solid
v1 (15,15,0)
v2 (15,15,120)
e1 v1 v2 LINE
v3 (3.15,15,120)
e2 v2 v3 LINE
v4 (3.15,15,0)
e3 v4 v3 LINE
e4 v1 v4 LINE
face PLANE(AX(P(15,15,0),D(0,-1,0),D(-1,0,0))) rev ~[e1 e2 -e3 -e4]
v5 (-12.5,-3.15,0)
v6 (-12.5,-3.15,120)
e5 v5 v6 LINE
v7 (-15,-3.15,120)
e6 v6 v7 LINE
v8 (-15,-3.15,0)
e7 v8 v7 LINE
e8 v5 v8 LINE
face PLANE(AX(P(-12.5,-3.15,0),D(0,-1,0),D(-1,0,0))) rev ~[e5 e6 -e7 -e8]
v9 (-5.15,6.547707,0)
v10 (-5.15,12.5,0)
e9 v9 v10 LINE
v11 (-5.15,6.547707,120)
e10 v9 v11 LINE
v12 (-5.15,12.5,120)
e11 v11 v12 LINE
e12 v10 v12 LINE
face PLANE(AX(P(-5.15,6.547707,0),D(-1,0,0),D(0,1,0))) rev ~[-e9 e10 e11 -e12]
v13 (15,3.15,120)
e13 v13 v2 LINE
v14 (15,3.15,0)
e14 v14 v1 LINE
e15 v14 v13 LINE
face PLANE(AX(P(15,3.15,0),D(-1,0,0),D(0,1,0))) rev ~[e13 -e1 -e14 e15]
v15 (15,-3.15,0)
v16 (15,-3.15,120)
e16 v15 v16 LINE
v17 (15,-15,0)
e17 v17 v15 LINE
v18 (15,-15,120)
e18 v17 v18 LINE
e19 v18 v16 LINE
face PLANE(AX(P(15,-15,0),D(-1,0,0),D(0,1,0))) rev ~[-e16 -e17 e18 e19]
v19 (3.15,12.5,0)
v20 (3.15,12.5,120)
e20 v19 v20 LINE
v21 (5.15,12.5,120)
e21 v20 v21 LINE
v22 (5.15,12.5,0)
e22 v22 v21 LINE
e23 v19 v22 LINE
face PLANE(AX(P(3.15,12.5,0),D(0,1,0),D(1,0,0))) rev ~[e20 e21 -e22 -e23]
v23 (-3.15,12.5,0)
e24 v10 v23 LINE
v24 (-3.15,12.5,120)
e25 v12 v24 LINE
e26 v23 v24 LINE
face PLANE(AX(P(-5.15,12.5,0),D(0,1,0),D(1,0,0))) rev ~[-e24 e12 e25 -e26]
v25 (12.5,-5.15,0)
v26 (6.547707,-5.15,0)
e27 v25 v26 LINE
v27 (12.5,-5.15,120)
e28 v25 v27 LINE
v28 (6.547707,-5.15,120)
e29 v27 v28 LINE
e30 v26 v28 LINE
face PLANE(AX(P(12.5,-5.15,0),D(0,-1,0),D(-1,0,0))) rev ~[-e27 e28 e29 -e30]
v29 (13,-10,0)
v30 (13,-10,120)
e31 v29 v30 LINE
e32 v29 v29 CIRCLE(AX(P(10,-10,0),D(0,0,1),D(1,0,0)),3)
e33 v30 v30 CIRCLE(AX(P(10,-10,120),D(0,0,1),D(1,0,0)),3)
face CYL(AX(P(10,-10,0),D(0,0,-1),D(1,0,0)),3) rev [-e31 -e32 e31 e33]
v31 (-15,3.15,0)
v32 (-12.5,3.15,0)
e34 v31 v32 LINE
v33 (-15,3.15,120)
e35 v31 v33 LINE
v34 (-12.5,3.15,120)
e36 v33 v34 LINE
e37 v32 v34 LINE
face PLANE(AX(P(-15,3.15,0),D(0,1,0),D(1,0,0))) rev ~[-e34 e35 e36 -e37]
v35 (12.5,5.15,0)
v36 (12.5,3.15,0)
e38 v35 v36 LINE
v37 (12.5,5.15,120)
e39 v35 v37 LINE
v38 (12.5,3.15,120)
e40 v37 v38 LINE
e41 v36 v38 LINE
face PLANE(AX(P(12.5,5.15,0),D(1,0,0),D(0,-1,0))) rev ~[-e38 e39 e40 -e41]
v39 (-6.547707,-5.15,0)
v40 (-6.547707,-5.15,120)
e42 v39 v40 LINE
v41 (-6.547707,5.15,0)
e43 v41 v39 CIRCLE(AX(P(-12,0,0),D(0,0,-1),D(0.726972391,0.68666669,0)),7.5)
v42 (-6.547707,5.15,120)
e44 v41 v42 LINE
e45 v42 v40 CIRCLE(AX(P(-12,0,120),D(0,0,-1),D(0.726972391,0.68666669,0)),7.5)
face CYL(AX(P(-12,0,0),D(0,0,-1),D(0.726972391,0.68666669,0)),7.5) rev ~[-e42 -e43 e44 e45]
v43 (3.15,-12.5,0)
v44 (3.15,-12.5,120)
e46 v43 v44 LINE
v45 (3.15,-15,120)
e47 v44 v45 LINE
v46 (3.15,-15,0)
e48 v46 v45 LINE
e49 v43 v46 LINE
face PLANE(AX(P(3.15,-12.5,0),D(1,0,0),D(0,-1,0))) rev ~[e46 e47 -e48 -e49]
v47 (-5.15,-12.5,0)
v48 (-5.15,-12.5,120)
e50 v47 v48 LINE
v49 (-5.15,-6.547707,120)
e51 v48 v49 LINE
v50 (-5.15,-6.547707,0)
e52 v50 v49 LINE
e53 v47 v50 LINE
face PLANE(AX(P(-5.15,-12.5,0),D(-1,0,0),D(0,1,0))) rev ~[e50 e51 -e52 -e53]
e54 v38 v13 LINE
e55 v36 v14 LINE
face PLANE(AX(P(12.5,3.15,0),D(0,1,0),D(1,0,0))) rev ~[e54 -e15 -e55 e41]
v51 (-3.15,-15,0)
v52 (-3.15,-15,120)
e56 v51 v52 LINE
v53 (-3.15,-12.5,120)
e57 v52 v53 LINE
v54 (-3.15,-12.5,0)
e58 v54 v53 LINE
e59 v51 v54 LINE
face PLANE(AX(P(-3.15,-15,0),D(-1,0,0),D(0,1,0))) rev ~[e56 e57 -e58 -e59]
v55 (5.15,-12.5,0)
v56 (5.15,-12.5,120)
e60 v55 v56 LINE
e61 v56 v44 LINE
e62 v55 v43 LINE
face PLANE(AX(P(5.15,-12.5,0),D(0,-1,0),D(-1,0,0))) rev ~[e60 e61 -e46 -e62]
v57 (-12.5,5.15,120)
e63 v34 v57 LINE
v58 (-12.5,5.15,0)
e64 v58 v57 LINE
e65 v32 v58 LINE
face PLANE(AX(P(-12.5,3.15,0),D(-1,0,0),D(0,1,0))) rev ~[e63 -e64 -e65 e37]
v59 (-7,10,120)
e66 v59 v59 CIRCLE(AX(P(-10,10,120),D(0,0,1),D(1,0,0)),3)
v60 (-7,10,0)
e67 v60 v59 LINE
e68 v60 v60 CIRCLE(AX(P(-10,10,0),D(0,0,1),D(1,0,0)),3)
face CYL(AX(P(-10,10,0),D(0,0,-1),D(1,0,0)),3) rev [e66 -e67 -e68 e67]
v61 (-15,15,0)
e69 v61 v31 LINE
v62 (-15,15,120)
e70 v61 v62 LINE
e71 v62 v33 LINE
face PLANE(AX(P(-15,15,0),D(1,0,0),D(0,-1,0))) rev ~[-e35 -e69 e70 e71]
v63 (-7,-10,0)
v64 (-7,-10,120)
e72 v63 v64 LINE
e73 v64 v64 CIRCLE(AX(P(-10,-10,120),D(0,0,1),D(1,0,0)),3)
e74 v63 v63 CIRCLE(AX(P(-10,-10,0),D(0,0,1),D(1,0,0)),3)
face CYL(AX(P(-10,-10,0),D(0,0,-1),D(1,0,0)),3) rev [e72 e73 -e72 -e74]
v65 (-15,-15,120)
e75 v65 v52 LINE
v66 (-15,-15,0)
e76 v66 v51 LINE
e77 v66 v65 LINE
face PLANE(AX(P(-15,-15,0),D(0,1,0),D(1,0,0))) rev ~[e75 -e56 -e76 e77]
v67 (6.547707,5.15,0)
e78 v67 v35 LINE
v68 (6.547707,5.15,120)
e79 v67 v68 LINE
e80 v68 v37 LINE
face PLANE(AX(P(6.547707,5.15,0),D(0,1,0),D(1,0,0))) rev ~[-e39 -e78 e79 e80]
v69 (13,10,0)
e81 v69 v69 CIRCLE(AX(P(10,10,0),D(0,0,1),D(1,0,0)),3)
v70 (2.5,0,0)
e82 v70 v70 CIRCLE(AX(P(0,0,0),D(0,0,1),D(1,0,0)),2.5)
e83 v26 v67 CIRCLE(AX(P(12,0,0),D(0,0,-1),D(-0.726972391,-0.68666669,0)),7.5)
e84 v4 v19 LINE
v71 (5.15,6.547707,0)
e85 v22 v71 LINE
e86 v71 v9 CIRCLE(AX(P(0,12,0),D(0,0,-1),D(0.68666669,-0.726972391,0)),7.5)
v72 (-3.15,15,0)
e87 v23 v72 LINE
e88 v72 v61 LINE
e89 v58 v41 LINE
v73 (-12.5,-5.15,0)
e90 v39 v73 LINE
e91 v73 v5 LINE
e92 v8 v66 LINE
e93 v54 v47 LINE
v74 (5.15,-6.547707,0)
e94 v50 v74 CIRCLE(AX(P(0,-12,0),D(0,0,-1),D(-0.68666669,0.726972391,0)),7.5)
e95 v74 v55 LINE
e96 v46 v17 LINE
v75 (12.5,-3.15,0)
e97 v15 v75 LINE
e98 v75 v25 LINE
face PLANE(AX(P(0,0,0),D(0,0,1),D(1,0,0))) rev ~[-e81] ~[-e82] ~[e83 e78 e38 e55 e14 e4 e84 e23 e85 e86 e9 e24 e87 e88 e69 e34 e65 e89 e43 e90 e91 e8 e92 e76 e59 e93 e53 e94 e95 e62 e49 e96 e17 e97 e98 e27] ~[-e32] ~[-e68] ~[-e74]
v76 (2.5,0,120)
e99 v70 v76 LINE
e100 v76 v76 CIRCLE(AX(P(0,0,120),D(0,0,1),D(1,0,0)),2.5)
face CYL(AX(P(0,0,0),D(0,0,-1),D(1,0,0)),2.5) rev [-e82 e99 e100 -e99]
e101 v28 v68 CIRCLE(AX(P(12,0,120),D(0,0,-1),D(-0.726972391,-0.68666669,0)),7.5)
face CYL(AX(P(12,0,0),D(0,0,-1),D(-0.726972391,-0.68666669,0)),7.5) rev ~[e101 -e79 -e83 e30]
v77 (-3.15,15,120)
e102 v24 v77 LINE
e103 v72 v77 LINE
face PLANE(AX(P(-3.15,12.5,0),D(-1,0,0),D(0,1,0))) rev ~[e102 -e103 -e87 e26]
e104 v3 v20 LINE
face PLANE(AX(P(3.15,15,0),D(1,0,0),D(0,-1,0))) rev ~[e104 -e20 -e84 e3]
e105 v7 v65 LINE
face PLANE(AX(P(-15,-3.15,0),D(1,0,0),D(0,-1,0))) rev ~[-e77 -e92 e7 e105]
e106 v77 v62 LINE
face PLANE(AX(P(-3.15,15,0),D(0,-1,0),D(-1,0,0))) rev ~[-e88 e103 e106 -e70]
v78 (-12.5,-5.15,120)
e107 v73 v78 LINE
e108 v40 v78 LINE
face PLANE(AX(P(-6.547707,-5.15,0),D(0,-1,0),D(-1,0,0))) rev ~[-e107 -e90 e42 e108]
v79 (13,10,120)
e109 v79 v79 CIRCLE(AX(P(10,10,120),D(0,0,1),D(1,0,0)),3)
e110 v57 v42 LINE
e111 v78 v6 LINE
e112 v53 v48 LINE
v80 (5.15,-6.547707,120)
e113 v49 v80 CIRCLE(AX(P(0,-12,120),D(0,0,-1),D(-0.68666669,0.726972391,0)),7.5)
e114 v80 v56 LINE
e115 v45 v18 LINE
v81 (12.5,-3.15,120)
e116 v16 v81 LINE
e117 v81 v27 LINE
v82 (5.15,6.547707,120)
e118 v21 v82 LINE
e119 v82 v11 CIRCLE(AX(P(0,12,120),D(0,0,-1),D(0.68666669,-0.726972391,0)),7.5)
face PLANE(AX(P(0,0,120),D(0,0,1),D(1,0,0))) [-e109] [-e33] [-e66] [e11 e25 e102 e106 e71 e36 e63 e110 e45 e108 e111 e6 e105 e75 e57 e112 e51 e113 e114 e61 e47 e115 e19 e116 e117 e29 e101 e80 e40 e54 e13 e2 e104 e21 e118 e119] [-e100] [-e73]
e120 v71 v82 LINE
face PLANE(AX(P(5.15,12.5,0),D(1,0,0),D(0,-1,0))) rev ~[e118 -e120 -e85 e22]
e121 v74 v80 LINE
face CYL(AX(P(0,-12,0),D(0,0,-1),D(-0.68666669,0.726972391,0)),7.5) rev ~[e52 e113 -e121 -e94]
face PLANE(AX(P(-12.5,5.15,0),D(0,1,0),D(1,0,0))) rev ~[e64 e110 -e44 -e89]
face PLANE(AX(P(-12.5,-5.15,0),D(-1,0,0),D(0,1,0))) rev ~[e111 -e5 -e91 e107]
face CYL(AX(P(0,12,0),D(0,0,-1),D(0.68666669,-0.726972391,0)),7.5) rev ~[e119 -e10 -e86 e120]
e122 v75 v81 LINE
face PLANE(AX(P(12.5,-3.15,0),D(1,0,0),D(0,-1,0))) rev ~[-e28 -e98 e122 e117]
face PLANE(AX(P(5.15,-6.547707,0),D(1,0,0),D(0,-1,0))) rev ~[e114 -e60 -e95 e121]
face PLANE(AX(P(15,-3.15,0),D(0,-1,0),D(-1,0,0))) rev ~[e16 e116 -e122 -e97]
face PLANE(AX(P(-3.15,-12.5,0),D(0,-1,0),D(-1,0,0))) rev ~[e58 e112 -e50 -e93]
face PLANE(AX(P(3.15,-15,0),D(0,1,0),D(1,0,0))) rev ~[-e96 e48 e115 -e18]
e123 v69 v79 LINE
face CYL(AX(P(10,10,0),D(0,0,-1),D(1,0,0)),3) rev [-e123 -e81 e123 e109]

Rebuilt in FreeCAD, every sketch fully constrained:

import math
import FreeCAD as App
import Part
import Sketcher
from FreeCAD import Vector
Q = App.Units.Quantity

doc = App.newDocument("Part")
params = doc.addObject("Spreadsheet::Sheet", "Params")
for row, (alias, value) in enumerate([
    ("sketch1_diameter", "6 mm"),
    ("sketch1_diameter2", "5 mm"),
    ("sketch1_radius", "7.5 mm"),
    ("sketch1_width", "2 mm"),
    ("sketch1_width2", "2.5 mm"),
    ("pad1_length", "120 mm"),
], start=1):
    params.set(f"A{row}", alias)
    params.set(f"B{row}", "=" + value)
    params.setAlias(f"B{row}", alias)

body = doc.addObject("PartDesign::Body", "Body")

sketch1 = doc.addObject("Sketcher::SketchObject", "Sketch")
body.addObject(sketch1)
sketch1.AttachmentSupport = (doc.XY_Plane, [""])
sketch1.MapMode = "FlatFace"
sketch1.addGeometry([
    Part.LineSegment(Vector(-15, 15, 0), Vector(-15, 3.1, 0)),
    Part.LineSegment(Vector(-15, 3.1, 0), Vector(-12.5, 3.1, 0)),
    Part.LineSegment(Vector(-12.5, 3.1, 0), Vector(-12.5, 5.2, 0)),
    Part.LineSegment(Vector(-12.5, 5.2, 0), Vector(-6.5, 5.2, 0)),
    Part.ArcOfCircle(Part.Circle(Vector(-12, 0, 0), Vector(0, 0, 1), 7.5), math.radians(-43), math.radians(43)),
    Part.LineSegment(Vector(-6.5, -5.2, 0), Vector(-12.5, -5.2, 0)),
    Part.LineSegment(Vector(-12.5, -5.2, 0), Vector(-12.5, -3.1, 0)),
    Part.LineSegment(Vector(-12.5, -3.1, 0), Vector(-15, -3.1, 0)),
    Part.LineSegment(Vector(-15, -3.1, 0), Vector(-15, -15, 0)),
    Part.LineSegment(Vector(-15, -15, 0), Vector(-3.1, -15, 0)),
    Part.LineSegment(Vector(-3.1, -15, 0), Vector(-3.1, -12.5, 0)),
    Part.LineSegment(Vector(-3.1, -12.5, 0), Vector(-5.2, -12.5, 0)),
    Part.LineSegment(Vector(-5.2, -12.5, 0), Vector(-5.2, -6.5, 0)),
    Part.ArcOfCircle(Part.Circle(Vector(0, -12, 0), Vector(0, 0, 1), 7.5), math.radians(47), math.radians(133)),
    Part.LineSegment(Vector(5.2, -6.5, 0), Vector(5.2, -12.5, 0)),
    Part.LineSegment(Vector(5.2, -12.5, 0), Vector(3.1, -12.5, 0)),
    Part.LineSegment(Vector(3.1, -12.5, 0), Vector(3.1, -15, 0)),
    Part.LineSegment(Vector(3.1, -15, 0), Vector(15, -15, 0)),
    Part.LineSegment(Vector(15, -15, 0), Vector(15, -3.1, 0)),
    Part.LineSegment(Vector(15, -3.1, 0), Vector(12.5, -3.1, 0)),
    Part.LineSegment(Vector(12.5, -3.1, 0), Vector(12.5, -5.2, 0)),
    Part.LineSegment(Vector(12.5, -5.2, 0), Vector(6.5, -5.2, 0)),
    Part.ArcOfCircle(Part.Circle(Vector(12, 0, 0), Vector(0, 0, 1), 7.5), math.radians(137), math.radians(223)),
    Part.LineSegment(Vector(6.5, 5.2, 0), Vector(12.5, 5.2, 0)),
    Part.LineSegment(Vector(12.5, 5.2, 0), Vector(12.5, 3.1, 0)),
    Part.LineSegment(Vector(12.5, 3.1, 0), Vector(15, 3.1, 0)),
    Part.LineSegment(Vector(15, 3.1, 0), Vector(15, 15, 0)),
    Part.LineSegment(Vector(15, 15, 0), Vector(3.1, 15, 0)),
    Part.LineSegment(Vector(3.1, 15, 0), Vector(3.1, 12.5, 0)),
    Part.LineSegment(Vector(3.1, 12.5, 0), Vector(5.2, 12.5, 0)),
    Part.LineSegment(Vector(5.2, 12.5, 0), Vector(5.2, 6.5, 0)),
    Part.ArcOfCircle(Part.Circle(Vector(0, 12, 0), Vector(0, 0, 1), 7.5), math.radians(-133), math.radians(-47)),
    Part.LineSegment(Vector(-5.2, 6.5, 0), Vector(-5.2, 12.5, 0)),
    Part.LineSegment(Vector(-5.2, 12.5, 0), Vector(-3.1, 12.5, 0)),
    Part.LineSegment(Vector(-3.1, 12.5, 0), Vector(-3.1, 15, 0)),
    Part.LineSegment(Vector(-3.1, 15, 0), Vector(-15, 15, 0)),
    Part.Circle(Vector(-10, -10, 0), Vector(0, 0, 1), 3),
    Part.Circle(Vector(10, -10, 0), Vector(0, 0, 1), 3),
    Part.Circle(Vector(-10, 10, 0), Vector(0, 0, 1), 3),
    Part.Circle(Vector(0, 0, 0), Vector(0, 0, 1), 2.5),
    Part.Circle(Vector(10, 10, 0), Vector(0, 0, 1), 3),
], False)
sketch1.addConstraint([
    Sketcher.Constraint("Coincident", 0, 2, 1, 1),
    Sketcher.Constraint("Coincident", 1, 2, 2, 1),
    Sketcher.Constraint("Coincident", 2, 2, 3, 1),
    Sketcher.Constraint("Coincident", 3, 2, 4, 2),
    Sketcher.Constraint("Coincident", 4, 1, 5, 1),
    Sketcher.Constraint("Coincident", 5, 2, 6, 1),
    Sketcher.Constraint("Coincident", 6, 2, 7, 1),
    Sketcher.Constraint("Coincident", 7, 2, 8, 1),
    Sketcher.Constraint("Coincident", 8, 2, 9, 1),
    Sketcher.Constraint("Coincident", 9, 2, 10, 1),
    Sketcher.Constraint("Coincident", 10, 2, 11, 1),
    Sketcher.Constraint("Coincident", 11, 2, 12, 1),
    Sketcher.Constraint("Coincident", 12, 2, 13, 2),
    Sketcher.Constraint("Coincident", 13, 1, 14, 1),
    Sketcher.Constraint("Coincident", 14, 2, 15, 1),
    Sketcher.Constraint("Coincident", 15, 2, 16, 1),
    Sketcher.Constraint("Coincident", 16, 2, 17, 1),
    Sketcher.Constraint("Coincident", 17, 2, 18, 1),
    Sketcher.Constraint("Coincident", 18, 2, 19, 1),
    Sketcher.Constraint("Coincident", 19, 2, 20, 1),
    Sketcher.Constraint("Coincident", 20, 2, 21, 1),
    Sketcher.Constraint("Coincident", 21, 2, 22, 2),
    Sketcher.Constraint("Coincident", 22, 1, 23, 1),
    Sketcher.Constraint("Coincident", 23, 2, 24, 1),
    Sketcher.Constraint("Coincident", 24, 2, 25, 1),
    Sketcher.Constraint("Coincident", 25, 2, 26, 1),
    Sketcher.Constraint("Coincident", 26, 2, 27, 1),
    Sketcher.Constraint("Coincident", 27, 2, 28, 1),
    Sketcher.Constraint("Coincident", 28, 2, 29, 1),
    Sketcher.Constraint("Coincident", 29, 2, 30, 1),
    Sketcher.Constraint("Coincident", 30, 2, 31, 2),
    Sketcher.Constraint("Coincident", 31, 1, 32, 1),
    Sketcher.Constraint("Coincident", 32, 2, 33, 1),
    Sketcher.Constraint("Coincident", 33, 2, 34, 1),
    Sketcher.Constraint("Coincident", 34, 2, 35, 1),
    Sketcher.Constraint("Coincident", 35, 2, 0, 1),
    Sketcher.Constraint("Vertical", 0),
    Sketcher.Constraint("Horizontal", 1),
    Sketcher.Constraint("Vertical", 2),
    Sketcher.Constraint("Horizontal", 3),
    Sketcher.Constraint("Horizontal", 5),
    Sketcher.Constraint("Vertical", 6),
    Sketcher.Constraint("Horizontal", 7),
    Sketcher.Constraint("Vertical", 8),
    Sketcher.Constraint("Horizontal", 9),
    Sketcher.Constraint("Vertical", 10),
    Sketcher.Constraint("Horizontal", 11),
    Sketcher.Constraint("Vertical", 12),
    Sketcher.Constraint("Vertical", 14),
    Sketcher.Constraint("Horizontal", 15),
    Sketcher.Constraint("Vertical", 16),
    Sketcher.Constraint("Horizontal", 17),
    Sketcher.Constraint("Vertical", 18),
    Sketcher.Constraint("Horizontal", 19),
    Sketcher.Constraint("Vertical", 20),
    Sketcher.Constraint("Horizontal", 21),
    Sketcher.Constraint("Horizontal", 23),
    Sketcher.Constraint("Vertical", 24),
    Sketcher.Constraint("Horizontal", 25),
    Sketcher.Constraint("Vertical", 26),
    Sketcher.Constraint("Horizontal", 27),
    Sketcher.Constraint("Vertical", 28),
    Sketcher.Constraint("Horizontal", 29),
    Sketcher.Constraint("Vertical", 30),
    Sketcher.Constraint("Vertical", 32),
    Sketcher.Constraint("Horizontal", 33),
    Sketcher.Constraint("Vertical", 34),
    Sketcher.Constraint("Horizontal", 35),
    Sketcher.Constraint("Coincident", 39, 3, -1, 1),
    Sketcher.Constraint("Equal", 4, 13),
    Sketcher.Constraint("Equal", 13, 22),
    Sketcher.Constraint("Equal", 22, 31),
    Sketcher.Constraint("Equal", 36, 37),
    Sketcher.Constraint("Equal", 37, 38),
    Sketcher.Constraint("Equal", 38, 40),
    Sketcher.Constraint("Symmetric", 4, 3, 22, 3, -1, 1),
    Sketcher.Constraint("Symmetric", 13, 3, 31, 3, -1, 1),
    Sketcher.Constraint("Symmetric", 37, 3, 38, 3, -1, 1),
    Sketcher.Constraint("Symmetric", 36, 3, 40, 3, -1, 1),
    Sketcher.Constraint("Symmetric", 0, 2, 18, 2, -1, 1),
    Sketcher.Constraint("Symmetric", 2, 2, 20, 2, -1, 1),
    Sketcher.Constraint("Symmetric", 5, 2, 23, 2, -1, 1),
    Sketcher.Constraint("Symmetric", 7, 2, 25, 2, -1, 1),
    Sketcher.Constraint("Symmetric", 9, 2, 27, 2, -1, 1),
    Sketcher.Constraint("Symmetric", 11, 2, 29, 2, -1, 1),
    Sketcher.Constraint("Symmetric", 14, 2, 32, 2, -1, 1),
    Sketcher.Constraint("Symmetric", 16, 2, 34, 2, -1, 1),
    Sketcher.Constraint("Symmetric", 36, 3, 37, 3, -2),
    Sketcher.Constraint("Symmetric", 12, 2, 13, 1, -2),
    Sketcher.Constraint("Symmetric", 10, 2, 15, 2, -2),
    Sketcher.Constraint("Symmetric", 8, 2, 17, 2, -2),
    Sketcher.Constraint("Symmetric", 6, 2, 19, 2, -2),
    Sketcher.Constraint("Symmetric", 4, 1, 21, 2, -2),
    Sketcher.Constraint("Equal", 35, 0),
    Sketcher.Constraint("Equal", 33, 2),
    Sketcher.Constraint("Equal", 25, 10),
    Sketcher.Constraint("Equal", 23, 12),
    Sketcher.Constraint("Diameter", 36, Q("6 mm")),
    Sketcher.Constraint("Diameter", 39, Q("5 mm")),
    Sketcher.Constraint("Radius", 4, Q("7.5 mm")),
    Sketcher.Constraint("DistanceX", 11, 2, 11, 1, Q("2 mm")),
    Sketcher.Constraint("DistanceX", 1, 1, 1, 2, Q("2.5 mm")),
    Sketcher.Constraint("DistanceX", 4, 3, -1, 1, Q("12 mm")),
    Sketcher.Constraint("DistanceY", 13, 3, -1, 1, Q("12 mm")),
    Sketcher.Constraint("DistanceX", 36, 3, -1, 1, Q("10 mm")),
    Sketcher.Constraint("DistanceY", 36, 3, -1, 1, Q("10 mm")),
    Sketcher.Constraint("DistanceX", 0, 2, -1, 1, Q("15 mm")),
    Sketcher.Constraint("DistanceX", 9, 1, 9, 2, Q("11.85 mm")),
])
sketch1.setExpression("Constraints[97]", "Params.sketch1_diameter")
sketch1.setExpression("Constraints[98]", "Params.sketch1_diameter2")
sketch1.setExpression("Constraints[99]", "Params.sketch1_radius")
sketch1.setExpression("Constraints[100]", "Params.sketch1_width")
sketch1.setExpression("Constraints[101]", "Params.sketch1_width2")
pad1 = doc.addObject("PartDesign::Pad", "Pad")
body.addObject(pad1)
pad1.Profile = sketch1
pad1.setExpression("Length", "Params.pad1_length")

doc.recompute()
